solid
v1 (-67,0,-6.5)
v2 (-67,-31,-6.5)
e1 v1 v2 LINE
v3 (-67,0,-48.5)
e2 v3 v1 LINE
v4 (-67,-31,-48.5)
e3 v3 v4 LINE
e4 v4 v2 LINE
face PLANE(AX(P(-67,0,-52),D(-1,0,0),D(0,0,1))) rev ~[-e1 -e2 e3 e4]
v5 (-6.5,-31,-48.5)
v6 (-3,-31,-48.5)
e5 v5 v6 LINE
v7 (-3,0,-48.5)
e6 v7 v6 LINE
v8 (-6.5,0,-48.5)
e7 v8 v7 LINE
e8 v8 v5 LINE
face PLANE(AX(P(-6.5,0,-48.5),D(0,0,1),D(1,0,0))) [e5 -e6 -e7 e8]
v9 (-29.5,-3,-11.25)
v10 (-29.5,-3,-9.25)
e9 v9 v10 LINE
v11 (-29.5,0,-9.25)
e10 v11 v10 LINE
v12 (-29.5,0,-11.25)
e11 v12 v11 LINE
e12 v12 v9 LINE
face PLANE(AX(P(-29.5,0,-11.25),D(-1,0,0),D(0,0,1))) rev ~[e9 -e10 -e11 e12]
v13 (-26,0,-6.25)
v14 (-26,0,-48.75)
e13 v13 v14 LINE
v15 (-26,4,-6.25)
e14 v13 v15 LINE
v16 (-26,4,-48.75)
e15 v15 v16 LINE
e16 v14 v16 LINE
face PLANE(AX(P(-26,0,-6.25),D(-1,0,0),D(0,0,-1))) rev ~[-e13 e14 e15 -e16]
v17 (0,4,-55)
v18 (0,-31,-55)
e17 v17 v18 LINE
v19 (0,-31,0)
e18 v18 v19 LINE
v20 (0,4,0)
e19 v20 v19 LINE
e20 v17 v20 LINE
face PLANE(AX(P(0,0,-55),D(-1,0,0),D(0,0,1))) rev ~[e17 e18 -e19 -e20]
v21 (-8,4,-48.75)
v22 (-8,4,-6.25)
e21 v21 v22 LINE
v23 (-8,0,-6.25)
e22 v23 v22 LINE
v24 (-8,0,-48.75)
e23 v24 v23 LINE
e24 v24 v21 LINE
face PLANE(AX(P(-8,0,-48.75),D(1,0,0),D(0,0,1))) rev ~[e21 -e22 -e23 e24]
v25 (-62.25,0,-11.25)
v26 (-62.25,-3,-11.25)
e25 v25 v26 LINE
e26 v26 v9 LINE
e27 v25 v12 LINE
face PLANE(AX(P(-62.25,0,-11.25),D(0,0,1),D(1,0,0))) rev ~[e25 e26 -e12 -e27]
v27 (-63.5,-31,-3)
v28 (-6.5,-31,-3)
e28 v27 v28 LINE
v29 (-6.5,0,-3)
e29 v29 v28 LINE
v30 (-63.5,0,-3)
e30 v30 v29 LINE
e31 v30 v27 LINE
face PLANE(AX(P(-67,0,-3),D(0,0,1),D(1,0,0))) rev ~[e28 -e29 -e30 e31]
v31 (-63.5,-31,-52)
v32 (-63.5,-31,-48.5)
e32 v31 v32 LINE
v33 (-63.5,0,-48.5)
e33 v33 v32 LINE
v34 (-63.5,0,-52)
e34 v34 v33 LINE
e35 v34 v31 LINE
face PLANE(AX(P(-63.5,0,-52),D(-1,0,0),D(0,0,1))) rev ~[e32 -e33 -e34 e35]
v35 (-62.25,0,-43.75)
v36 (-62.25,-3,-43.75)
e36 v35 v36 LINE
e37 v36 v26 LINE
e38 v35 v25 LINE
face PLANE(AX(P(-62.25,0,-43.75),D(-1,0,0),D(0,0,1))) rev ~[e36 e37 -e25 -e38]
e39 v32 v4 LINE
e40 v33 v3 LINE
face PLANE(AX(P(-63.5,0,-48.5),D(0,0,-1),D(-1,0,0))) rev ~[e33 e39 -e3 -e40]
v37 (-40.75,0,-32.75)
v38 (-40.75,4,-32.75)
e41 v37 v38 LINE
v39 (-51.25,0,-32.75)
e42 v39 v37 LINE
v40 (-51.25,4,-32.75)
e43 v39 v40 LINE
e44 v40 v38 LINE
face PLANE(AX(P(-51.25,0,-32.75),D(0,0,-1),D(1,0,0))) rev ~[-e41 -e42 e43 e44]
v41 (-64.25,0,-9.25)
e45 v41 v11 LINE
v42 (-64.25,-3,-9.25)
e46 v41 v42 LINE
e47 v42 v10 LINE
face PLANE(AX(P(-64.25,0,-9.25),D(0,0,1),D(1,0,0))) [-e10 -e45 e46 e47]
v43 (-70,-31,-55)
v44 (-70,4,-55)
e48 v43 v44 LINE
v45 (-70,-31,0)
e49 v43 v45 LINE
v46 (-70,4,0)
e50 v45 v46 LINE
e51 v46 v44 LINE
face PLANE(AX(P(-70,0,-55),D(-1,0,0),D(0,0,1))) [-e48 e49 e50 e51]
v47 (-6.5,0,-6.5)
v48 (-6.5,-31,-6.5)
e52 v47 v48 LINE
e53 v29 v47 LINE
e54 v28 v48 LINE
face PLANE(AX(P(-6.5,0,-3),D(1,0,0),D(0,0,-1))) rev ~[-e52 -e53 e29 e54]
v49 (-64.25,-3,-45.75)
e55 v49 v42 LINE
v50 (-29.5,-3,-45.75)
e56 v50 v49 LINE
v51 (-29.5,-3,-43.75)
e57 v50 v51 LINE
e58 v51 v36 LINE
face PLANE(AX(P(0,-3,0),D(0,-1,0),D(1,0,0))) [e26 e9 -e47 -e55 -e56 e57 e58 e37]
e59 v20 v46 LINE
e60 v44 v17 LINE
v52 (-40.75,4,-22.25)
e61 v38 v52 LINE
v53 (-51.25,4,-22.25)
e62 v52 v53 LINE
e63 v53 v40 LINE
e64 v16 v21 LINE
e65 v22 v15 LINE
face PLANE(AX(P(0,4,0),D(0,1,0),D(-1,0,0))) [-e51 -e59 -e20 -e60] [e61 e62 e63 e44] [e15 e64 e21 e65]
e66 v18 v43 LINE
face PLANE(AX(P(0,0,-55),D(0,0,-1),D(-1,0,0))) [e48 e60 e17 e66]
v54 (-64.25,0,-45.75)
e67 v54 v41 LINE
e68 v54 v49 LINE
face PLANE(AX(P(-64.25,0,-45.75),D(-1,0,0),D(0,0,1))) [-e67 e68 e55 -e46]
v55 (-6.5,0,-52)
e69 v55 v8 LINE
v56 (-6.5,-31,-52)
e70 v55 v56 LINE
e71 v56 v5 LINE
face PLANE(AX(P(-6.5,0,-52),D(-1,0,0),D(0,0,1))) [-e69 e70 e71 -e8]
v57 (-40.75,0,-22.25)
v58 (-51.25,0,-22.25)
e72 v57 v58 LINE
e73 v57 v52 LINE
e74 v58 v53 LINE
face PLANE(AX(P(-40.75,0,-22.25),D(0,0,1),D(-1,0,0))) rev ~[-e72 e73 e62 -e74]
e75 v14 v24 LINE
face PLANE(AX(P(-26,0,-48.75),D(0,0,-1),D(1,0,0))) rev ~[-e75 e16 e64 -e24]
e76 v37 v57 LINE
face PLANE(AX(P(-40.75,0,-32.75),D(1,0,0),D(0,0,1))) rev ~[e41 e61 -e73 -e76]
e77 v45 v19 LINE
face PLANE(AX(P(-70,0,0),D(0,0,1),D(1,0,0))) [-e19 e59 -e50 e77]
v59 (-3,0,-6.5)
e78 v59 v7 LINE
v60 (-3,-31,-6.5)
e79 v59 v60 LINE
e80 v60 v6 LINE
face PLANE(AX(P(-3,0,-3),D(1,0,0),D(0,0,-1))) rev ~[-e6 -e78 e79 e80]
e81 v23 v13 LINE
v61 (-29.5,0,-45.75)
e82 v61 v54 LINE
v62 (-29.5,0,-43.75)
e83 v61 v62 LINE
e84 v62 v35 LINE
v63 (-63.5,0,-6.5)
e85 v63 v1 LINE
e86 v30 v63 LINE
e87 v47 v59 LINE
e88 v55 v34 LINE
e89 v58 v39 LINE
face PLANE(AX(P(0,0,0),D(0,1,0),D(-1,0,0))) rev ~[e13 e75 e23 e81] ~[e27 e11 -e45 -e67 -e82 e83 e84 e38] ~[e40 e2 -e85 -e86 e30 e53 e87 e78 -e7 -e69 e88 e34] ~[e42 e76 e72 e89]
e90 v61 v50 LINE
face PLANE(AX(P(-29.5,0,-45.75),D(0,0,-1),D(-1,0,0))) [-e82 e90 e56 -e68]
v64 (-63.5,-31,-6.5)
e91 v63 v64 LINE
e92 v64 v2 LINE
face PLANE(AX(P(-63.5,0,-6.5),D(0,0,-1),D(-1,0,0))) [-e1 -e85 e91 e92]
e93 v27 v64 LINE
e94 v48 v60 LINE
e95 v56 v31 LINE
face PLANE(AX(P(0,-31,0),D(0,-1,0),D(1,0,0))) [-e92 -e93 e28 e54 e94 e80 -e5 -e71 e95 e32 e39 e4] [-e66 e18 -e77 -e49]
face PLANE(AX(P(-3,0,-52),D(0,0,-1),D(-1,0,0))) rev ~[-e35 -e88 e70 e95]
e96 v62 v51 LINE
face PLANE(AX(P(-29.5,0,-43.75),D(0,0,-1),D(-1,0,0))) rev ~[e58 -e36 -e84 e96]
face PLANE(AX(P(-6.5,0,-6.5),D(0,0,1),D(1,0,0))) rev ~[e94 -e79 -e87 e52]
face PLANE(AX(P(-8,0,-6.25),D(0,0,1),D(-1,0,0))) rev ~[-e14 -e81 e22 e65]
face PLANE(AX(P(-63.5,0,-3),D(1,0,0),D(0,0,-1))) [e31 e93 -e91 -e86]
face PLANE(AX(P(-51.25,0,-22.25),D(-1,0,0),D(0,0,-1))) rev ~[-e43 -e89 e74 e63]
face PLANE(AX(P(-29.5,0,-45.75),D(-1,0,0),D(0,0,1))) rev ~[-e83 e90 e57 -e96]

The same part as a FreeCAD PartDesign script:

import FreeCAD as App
import Part
import Sketcher
from FreeCAD import Vector
Q = App.Units.Quantity

doc = App.newDocument("Part")
params = doc.addObject("Spreadsheet::Sheet", "Params")
for row, (alias, value) in enumerate([
    ("sketch1_width", "70 mm"),
    ("sketch1_width2", "18 mm"),
    ("sketch1_height", "55 mm"),
    ("sketch1_width3", "10.5 mm"),
    ("sketch1_height2", "42.5 mm"),
    ("pad1_length", "4 mm"),
    ("sketch2_height", "2 mm"),
    ("sketch2_width", "32.75 mm"),
    ("sketch2_height2", "32.5 mm"),
    ("pad2_length", "3 mm"),
    ("sketch3_width", "70 mm"),
    ("sketch3_height", "55 mm"),
    ("pad3_length", "31 mm"),
    ("sketch4_width", "3.5 mm"),
    ("pad4_length", "31 mm"),
], start=1):
    params.set(f"A{row}", alias)
    params.set(f"B{row}", "=" + value)
    params.setAlias(f"B{row}", alias)

body = doc.addObject("PartDesign::Body", "Body")

# Sketch on XZ plane
sketch1 = body.newObject("Sketcher::SketchObject", "Sketch")
sketch1.AttachmentSupport = (doc.getObject("XZ_Plane"), [""])
sketch1.MapMode = "FlatFace"
sketch1.addGeometry([
    Part.LineSegment(Vector(-70, 0, 0), Vector(0, 0, 0)),  # 0
    Part.LineSegment(Vector(0, 0, 0), Vector(0, -55, 0)),  # 1
    Part.LineSegment(Vector(0, -55, 0), Vector(-70, -55, 0)),  # 2
    Part.LineSegment(Vector(-70, -55, 0), Vector(-70, 0, 0)),  # 3
    Part.LineSegment(Vector(-26, -6, 0), Vector(-26, -49, 0)),  # 4
    Part.LineSegment(Vector(-26, -49, 0), Vector(-8, -49, 0)),  # 5
    Part.LineSegment(Vector(-8, -49, 0), Vector(-8, -6, 0)),  # 6
    Part.LineSegment(Vector(-8, -6, 0), Vector(-26, -6, 0)),  # 7
    Part.LineSegment(Vector(-51, -22, 0), Vector(-51, -33, 0)),  # 8
    Part.LineSegment(Vector(-51, -33, 0), Vector(-41, -33, 0)),  # 9
    Part.LineSegment(Vector(-41, -33, 0), Vector(-41, -22, 0)),  # 10
    Part.LineSegment(Vector(-41, -22, 0), Vector(-51, -22, 0)),  # 11
], False)
sketch1.addConstraint([
    Sketcher.Constraint("Coincident", 0, 2, 1, 1),
    Sketcher.Constraint("Coincident", 1, 2, 2, 1),
    Sketcher.Constraint("Coincident", 2, 2, 3, 1),
    Sketcher.Constraint("Coincident", 3, 2, 0, 1),
    Sketcher.Constraint("Coincident", 4, 2, 5, 1),
    Sketcher.Constraint("Coincident", 5, 2, 6, 1),
    Sketcher.Constraint("Coincident", 6, 2, 7, 1),
    Sketcher.Constraint("Coincident", 7, 2, 4, 1),
    Sketcher.Constraint("Coincident", 8, 2, 9, 1),
    Sketcher.Constraint("Coincident", 9, 2, 10, 1),
    Sketcher.Constraint("Coincident", 10, 2, 11, 1),
    Sketcher.Constraint("Coincident", 11, 2, 8, 1),
    Sketcher.Constraint("Horizontal", 0),
    Sketcher.Constraint("Vertical", 1),
    Sketcher.Constraint("Horizontal", 2),
    Sketcher.Constraint("Vertical", 3),
    Sketcher.Constraint("Vertical", 4),
    Sketcher.Constraint("Horizontal", 5),
    Sketcher.Constraint("Vertical", 6),
    Sketcher.Constraint("Horizontal", 7),
    Sketcher.Constraint("Vertical", 8),
    Sketcher.Constraint("Horizontal", 9),
    Sketcher.Constraint("Vertical", 10),
    Sketcher.Constraint("Horizontal", 11),
    Sketcher.Constraint("Coincident", 0, 2, -1, 1),
    Sketcher.Constraint("Equal", 11, 8),
    Sketcher.Constraint("DistanceX", 0, 1, 0, 2, Q("70 mm")),
    Sketcher.Constraint("DistanceX", 5, 1, 5, 2, Q("18 mm")),
    Sketcher.Constraint("DistanceY", 1, 2, 1, 1, Q("55 mm")),
    Sketcher.Constraint("DistanceX", 9, 1, 9, 2, Q("10.5 mm")),
    Sketcher.Constraint("DistanceY", 4, 2, 4, 1, Q("42.5 mm")),
    Sketcher.Constraint("DistanceX", 5, 2, -1, 1, Q("8 mm")),
    Sketcher.Constraint("DistanceY", 6, 2, -1, 1, Q("6.25 mm")),
    Sketcher.Constraint("DistanceY", 10, 2, -1, 1, Q("22.25 mm")),
    Sketcher.Constraint("DistanceX", 2, 2, 8, 2, Q("18.75 mm")),
])
sketch1.setExpression("Constraints[26]", "Params.sketch1_width")
sketch1.setExpression("Constraints[27]", "Params.sketch1_width2")
sketch1.setExpression("Constraints[28]", "Params.sketch1_height")
sketch1.setExpression("Constraints[29]", "Params.sketch1_width3")
sketch1.setExpression("Constraints[30]", "Params.sketch1_height2")
pad1 = body.newObject("PartDesign::Pad", "Pad")
pad1.Profile = sketch1
pad1.setExpression("Length", "Params.pad1_length")
pad1.Reversed = True

# Sketch on XZ plane
sketch2 = body.newObject("Sketcher::SketchObject", "Sketch001")
sketch2.AttachmentSupport = (doc.getObject("XZ_Plane"), [""])
sketch2.MapMode = "FlatFace"
sketch2.addGeometry([
    Part.LineSegment(Vector(-29.5, -45.8, 0), Vector(-29.5, -43.8, 0)),  # 0
    Part.LineSegment(Vector(-29.5, -43.8, 0), Vector(-62.2, -43.8, 0)),  # 1
    Part.LineSegment(Vector(-62.2, -43.8, 0), Vector(-62.2, -11.2, 0)),  # 2
    Part.LineSegment(Vector(-62.2, -11.2, 0), Vector(-29.5, -11.2, 0)),  # 3
    Part.LineSegment(Vector(-29.5, -11.2, 0), Vector(-29.5, -9.2, 0)),  # 4
    Part.LineSegment(Vector(-29.5, -9.2, 0), Vector(-64.2, -9.2, 0)),  # 5
    Part.LineSegment(Vector(-64.2, -9.2, 0), Vector(-64.2, -45.8, 0)),  # 6
    Part.LineSegment(Vector(-64.2, -45.8, 0), Vector(-29.5, -45.8, 0)),  # 7
], False)
sketch2.addConstraint([
    Sketcher.Constraint("Coincident", 0, 2, 1, 1),
    Sketcher.Constraint("Coincident", 1, 2, 2, 1),
    Sketcher.Constraint("Coincident", 2, 2, 3, 1),
    Sketcher.Constraint("Coincident", 3, 2, 4, 1),
    Sketcher.Constraint("Coincident", 4, 2, 5, 1),
    Sketcher.Constraint("Coincident", 5, 2, 6, 1),
    Sketcher.Constraint("Coincident", 6, 2, 7, 1),
    Sketcher.Constraint("Coincident", 7, 2, 0, 1),
    Sketcher.Constraint("Vertical", 0),
    Sketcher.Constraint("Horizontal", 1),
    Sketcher.Constraint("Vertical", 2),
    Sketcher.Constraint("Horizontal", 3),
    Sketcher.Constraint("Vertical", 4),
    Sketcher.Constraint("Horizontal", 5),
    Sketcher.Constraint("Vertical", 6),
    Sketcher.Constraint("Horizontal", 7),
    Sketcher.Constraint("Vertical", 0, 2, 3, 2),
    Sketcher.Constraint("Equal", 0, 4),
    Sketcher.Constraint("DistanceY", 0, 1, 0, 2, Q("2 mm")),
    Sketcher.Constraint("DistanceX", 5, 2, 2, 2, Q("2 mm")),
    Sketcher.Constraint("DistanceX", 1, 2, 1, 1, Q("32.75 mm")),
    Sketcher.Constraint("DistanceY", 2, 1, 2, 2, Q("32.5 mm")),
    Sketcher.Constraint("DistanceX", 0, 2, -1, 1, Q("29.5 mm")),
    Sketcher.Constraint("DistanceY", 0, 2, -1, 1, Q("43.75 mm")),
])
sketch2.setExpression("Constraints[18]", "Params.sketch2_height")
sketch2.setExpression("Constraints[20]", "Params.sketch2_width")
sketch2.setExpression("Constraints[21]", "Params.sketch2_height2")
pad2 = body.newObject("PartDesign::Pad", "Pad001")
pad2.Profile = sketch2
pad2.setExpression("Length", "Params.pad2_length")

# Sketch on XZ plane
sketch3 = body.newObject("Sketcher::SketchObject", "Sketch002")
sketch3.AttachmentSupport = (doc.getObject("XZ_Plane"), [""])
sketch3.MapMode = "FlatFace"
sketch3.addGeometry([
    Part.LineSegment(Vector(-70, -55, 0), Vector(0, -55, 0)),  # 0
    Part.LineSegment(Vector(0, -55, 0), Vector(0, 0, 0)),  # 1
    Part.LineSegment(Vector(0, 0, 0), Vector(-70, 0, 0)),  # 2
    Part.LineSegment(Vector(-70, 0, 0), Vector(-70, -55, 0)),  # 3
    Part.LineSegment(Vector(-3, -3, 0), Vector(-3, -52, 0)),  # 4
    Part.LineSegment(Vector(-3, -52, 0), Vector(-67, -52, 0)),  # 5
    Part.LineSegment(Vector(-67, -52, 0), Vector(-67, -3, 0)),  # 6
    Part.LineSegment(Vector(-67, -3, 0), Vector(-3, -3, 0)),  # 7
], False)
sketch3.addConstraint([
    Sketcher.Constraint("Coincident", 0, 2, 1, 1),
    Sketcher.Constraint("Coincident", 1, 2, 2, 1),
    Sketcher.Constraint("Coincident", 2, 2, 3, 1),
    Sketcher.Constraint("Coincident", 3, 2, 0, 1),
    Sketcher.Constraint("Coincident", 4, 2, 5, 1),
    Sketcher.Constraint("Coincident", 5, 2, 6, 1),
    Sketcher.Constraint("Coincident", 6, 2, 7, 1),
    Sketcher.Constraint("Coincident", 7, 2, 4, 1),
    Sketcher.Constraint("Horizontal", 0),
    Sketcher.Constraint("Vertical", 1),
    Sketcher.Constraint("Horizontal", 2),
    Sketcher.Constraint("Vertical", 3),
    Sketcher.Constraint("Vertical", 4),
    Sketcher.Constraint("Horizontal", 5),
    Sketcher.Constraint("Vertical", 6),
    Sketcher.Constraint("Horizontal", 7),
    Sketcher.Constraint("Coincident", 1, 2, -1, 1),
    Sketcher.Constraint("DistanceX", 4, 2, -1, 1, Q("3 mm")),
    Sketcher.Constraint("DistanceY", 6, 2, -1, 1, Q("3 mm")),
    Sketcher.Constraint("DistanceY", 0, 2, 4, 2, Q("3 mm")),
    Sketcher.Constraint("DistanceX", 3, 2, 5, 2, Q("3 mm")),
    Sketcher.Constraint("DistanceX", 0, 1, 0, 2, Q("70 mm")),
    Sketcher.Constraint("DistanceY", 1, 1, 1, 2, Q("55 mm")),
])
sketch3.setExpression("Constraints[21]", "Params.sketch3_width")
sketch3.setExpression("Constraints[22]", "Params.sketch3_height")
pad3 = body.newObject("PartDesign::Pad", "Pad002")
pad3.Profile = sketch3
pad3.setExpression("Length", "Params.pad3_length")

# Sketch on XZ plane
sketch4 = body.newObject("Sketcher::SketchObject", "Sketch003")
sketch4.AttachmentSupport = (doc.getObject("XZ_Plane"), [""])
sketch4.MapMode = "FlatFace"
sketch4.addGeometry([
    Part.LineSegment(Vector(-6.5, -6.5, 0), Vector(-3, -6.5, 0)),  # 0
    Part.LineSegment(Vector(-3, -6.5, 0), Vector(-3, -3, 0)),  # 1
    Part.LineSegment(Vector(-3, -3, 0), Vector(-6.5, -3, 0)),  # 2
    Part.LineSegment(Vector(-6.5, -3, 0), Vector(-6.5, -6.5, 0)),  # 3
    Part.LineSegment(Vector(-6.5, -52, 0), Vector(-3, -52, 0)),  # 4
    Part.LineSegment(Vector(-3, -52, 0), Vector(-3, -48.5, 0)),  # 5
    Part.LineSegment(Vector(-3, -48.5, 0), Vector(-6.5, -48.5, 0)),  # 6
    Part.LineSegment(Vector(-6.5, -48.5, 0), Vector(-6.5, -52, 0)),  # 7
    Part.LineSegment(Vector(-63.5, -3, 0), Vector(-67, -3, 0)),  # 8
    Part.LineSegment(Vector(-67, -3, 0), Vector(-67, -6.5, 0)),  # 9
    Part.LineSegment(Vector(-67, -6.5, 0), Vector(-63.5, -6.5, 0)),  # 10
    Part.LineSegment(Vector(-63.5, -6.5, 0), Vector(-63.5, -3, 0)),  # 11
    Part.LineSegment(Vector(-63.5, -48.5, 0), Vector(-67, -48.5, 0)),  # 12
    Part.LineSegment(Vector(-67, -48.5, 0), Vector(-67, -52, 0)),  # 13
    Part.LineSegment(Vector(-67, -52, 0), Vector(-63.5, -52, 0)),  # 14
    Part.LineSegment(Vector(-63.5, -52, 0), Vector(-63.5, -48.5, 0)),  # 15
], False)
sketch4.addConstraint([
    Sketcher.Constraint("Coincident", 0, 2, 1, 1),
    Sketcher.Constraint("Coincident", 1, 2, 2, 1),
    Sketcher.Constraint("Coincident", 2, 2, 3, 1),
    Sketcher.Constraint("Coincident", 3, 2, 0, 1),
    Sketcher.Constraint("Coincident", 4, 2, 5, 1),
    Sketcher.Constraint("Coincident", 5, 2, 6, 1),
    Sketcher.Constraint("Coincident", 6, 2, 7, 1),
    Sketcher.Constraint("Coincident", 7, 2, 4, 1),
    Sketcher.Constraint("Coincident", 8, 2, 9, 1),
    Sketcher.Constraint("Coincident", 9, 2, 10, 1),
    Sketcher.Constraint("Coincident", 10, 2, 11, 1),
    Sketcher.Constraint("Coincident", 11, 2, 8, 1),
    Sketcher.Constraint("Coincident", 12, 2, 13, 1),
    Sketcher.Constraint("Coincident", 13, 2, 14, 1),
    Sketcher.Constraint("Coincident", 14, 2, 15, 1),
    Sketcher.Constraint("Coincident", 15, 2, 12, 1),
    Sketcher.Constraint("Horizontal", 0),
    Sketcher.Constraint("Vertical", 1),
    Sketcher.Constraint("Horizontal", 2),
    Sketcher.Constraint("Vertical", 3),
    Sketcher.Constraint("Horizontal", 4),
    Sketcher.Constraint("Vertical", 5),
    Sketcher.Constraint("Horizontal", 6),
    Sketcher.Constraint("Vertical", 7),
    Sketcher.Constraint("Horizontal", 8),
    Sketcher.Constraint("Vertical", 9),
    Sketcher.Constraint("Horizontal", 10),
    Sketcher.Constraint("Vertical", 11),
    Sketcher.Constraint("Horizontal", 12),
    Sketcher.Constraint("Vertical", 13),
    Sketcher.Constraint("Horizontal", 14),
    Sketcher.Constraint("Vertical", 15),
    Sketcher.Constraint("Horizontal", 2, 2, 8, 2),
    Sketcher.Constraint("Horizontal", 3, 2, 9, 2),
    Sketcher.Constraint("Horizontal", 6, 2, 12, 2),
    Sketcher.Constraint("Horizontal", 7, 2, 13, 2),
    Sketcher.Constraint("Vertical", 1, 2, 4, 2),
    Sketcher.Constraint("Vertical", 3, 2, 6, 2),
    Sketcher.Constraint("Vertical", 9, 2, 12, 2),
    Sketcher.Constraint("Vertical", 11, 2, 14, 2),
    Sketcher.Constraint("Equal", 6, 8),
    Sketcher.Constraint("Equal", 14, 1),
    Sketcher.Constraint("Equal", 3, 5),
    Sketcher.Constraint("DistanceX", 0, 1, 0, 2, Q("3.5 mm")),
    Sketcher.Constraint("DistanceX", 0, 2, -1, 1, Q("3 mm")),
    Sketcher.Constraint("DistanceY", 1, 2, -1, 1, Q("3 mm")),
    Sketcher.Constraint("DistanceY", 4, 2, -1, 1, Q("52 mm")),
    Sketcher.Constraint("DistanceX", 8, 2, -1, 1, Q("67 mm")),
])
sketch4.setExpression("Constraints[43]", "Params.sketch4_width")
pad4 = body.newObject("PartDesign::Pad", "Pad003")
pad4.Profile = sketch4
pad4.setExpression("Length", "Params.pad4_length")

doc.recompute()
